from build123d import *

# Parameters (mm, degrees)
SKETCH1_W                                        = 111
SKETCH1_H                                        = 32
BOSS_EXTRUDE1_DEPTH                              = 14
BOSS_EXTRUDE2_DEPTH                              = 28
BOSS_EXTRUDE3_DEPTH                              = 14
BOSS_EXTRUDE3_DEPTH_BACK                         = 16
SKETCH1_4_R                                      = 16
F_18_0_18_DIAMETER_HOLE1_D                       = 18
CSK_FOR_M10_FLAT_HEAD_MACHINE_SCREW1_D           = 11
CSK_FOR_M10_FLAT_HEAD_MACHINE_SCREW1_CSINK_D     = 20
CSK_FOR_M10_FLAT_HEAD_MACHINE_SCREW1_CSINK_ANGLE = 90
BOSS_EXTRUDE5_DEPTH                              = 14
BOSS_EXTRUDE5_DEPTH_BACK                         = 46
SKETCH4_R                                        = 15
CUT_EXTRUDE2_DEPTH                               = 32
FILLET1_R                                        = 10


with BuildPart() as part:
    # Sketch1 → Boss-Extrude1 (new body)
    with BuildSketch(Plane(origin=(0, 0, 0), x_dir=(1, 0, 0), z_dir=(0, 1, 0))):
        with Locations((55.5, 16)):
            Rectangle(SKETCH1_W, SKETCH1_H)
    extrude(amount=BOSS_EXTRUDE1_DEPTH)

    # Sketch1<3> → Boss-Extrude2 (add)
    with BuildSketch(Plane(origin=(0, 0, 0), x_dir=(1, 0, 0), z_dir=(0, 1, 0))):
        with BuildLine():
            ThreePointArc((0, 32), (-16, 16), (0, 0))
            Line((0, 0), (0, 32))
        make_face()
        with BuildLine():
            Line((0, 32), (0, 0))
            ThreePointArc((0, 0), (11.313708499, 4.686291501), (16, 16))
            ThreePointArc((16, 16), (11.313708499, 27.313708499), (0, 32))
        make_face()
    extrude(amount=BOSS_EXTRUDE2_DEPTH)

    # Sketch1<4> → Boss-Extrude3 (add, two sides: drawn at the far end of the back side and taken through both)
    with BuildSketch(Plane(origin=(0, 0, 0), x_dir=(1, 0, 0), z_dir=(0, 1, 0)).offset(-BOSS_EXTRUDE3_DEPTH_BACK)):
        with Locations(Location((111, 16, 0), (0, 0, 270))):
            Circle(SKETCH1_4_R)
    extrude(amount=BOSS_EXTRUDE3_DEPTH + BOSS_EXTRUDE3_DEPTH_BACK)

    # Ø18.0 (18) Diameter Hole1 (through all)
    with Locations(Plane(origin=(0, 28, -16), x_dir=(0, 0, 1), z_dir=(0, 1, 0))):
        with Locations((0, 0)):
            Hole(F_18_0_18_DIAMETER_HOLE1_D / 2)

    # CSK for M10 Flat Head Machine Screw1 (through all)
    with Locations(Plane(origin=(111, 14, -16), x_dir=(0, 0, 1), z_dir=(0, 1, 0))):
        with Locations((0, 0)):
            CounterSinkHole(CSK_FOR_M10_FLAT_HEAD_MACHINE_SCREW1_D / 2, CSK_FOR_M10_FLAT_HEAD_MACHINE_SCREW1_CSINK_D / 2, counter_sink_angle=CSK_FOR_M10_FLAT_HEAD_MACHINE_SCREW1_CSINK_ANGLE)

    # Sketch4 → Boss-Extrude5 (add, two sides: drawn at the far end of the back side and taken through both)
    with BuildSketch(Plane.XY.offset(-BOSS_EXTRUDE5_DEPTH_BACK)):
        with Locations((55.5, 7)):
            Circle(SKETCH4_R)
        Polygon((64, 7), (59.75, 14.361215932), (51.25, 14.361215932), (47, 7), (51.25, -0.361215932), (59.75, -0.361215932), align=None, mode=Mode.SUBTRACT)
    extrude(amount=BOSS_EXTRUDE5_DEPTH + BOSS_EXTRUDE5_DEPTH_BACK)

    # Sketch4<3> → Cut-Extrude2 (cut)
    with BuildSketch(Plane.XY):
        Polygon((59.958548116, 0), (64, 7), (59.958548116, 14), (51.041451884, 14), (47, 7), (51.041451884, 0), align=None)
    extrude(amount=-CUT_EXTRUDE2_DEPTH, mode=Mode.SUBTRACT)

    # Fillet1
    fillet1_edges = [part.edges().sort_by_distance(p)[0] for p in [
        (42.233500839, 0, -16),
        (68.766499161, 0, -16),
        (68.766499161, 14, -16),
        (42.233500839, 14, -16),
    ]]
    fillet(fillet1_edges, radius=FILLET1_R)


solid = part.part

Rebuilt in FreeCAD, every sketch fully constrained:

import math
import FreeCAD as App
import Part
import Sketcher
Q = App.Units.Quantity


def edges_at(feature, points):
    """Names of the edges that pass closest to the given points."""
    edges = feature.Shape.Edges
    near = lambda p: min(range(len(edges)), key=lambda i: edges[i].distToShape(Part.Vertex(*p))[0])
    return sorted({f"Edge{near(p) + 1}" for p in points})

doc = App.newDocument("Part")
body = doc.addObject("PartDesign::Body", "Body")

# Sketch on XZ plane
sketch1 = body.newObject("Sketcher::SketchObject", "Sketch")
sketch1.AttachmentSupport = (doc.getObject("XZ_Plane"), [""])
sketch1.MapMode = "FlatFace"
sketch1.addGeometry([
    Part.LineSegment(App.Vector(0, -32, 0), App.Vector(0, 0, 0)),
    Part.LineSegment(App.Vector(0, 0, 0), App.Vector(111, 0, 0)),
    Part.LineSegment(App.Vector(111, 0, 0), App.Vector(111, -32, 0)),
    Part.LineSegment(App.Vector(111, -32, 0), App.Vector(0, -32, 0)),
], False)
sketch1.addConstraint([
    Sketcher.Constraint("Coincident", 0, 2, 1, 1),
    Sketcher.Constraint("Coincident", 1, 2, 2, 1),
    Sketcher.Constraint("Coincident", 2, 2, 3, 1),
    Sketcher.Constraint("Coincident", 3, 2, 0, 1),
    Sketcher.Constraint("Vertical", 0),
    Sketcher.Constraint("Horizontal", 1),
    Sketcher.Constraint("Vertical", 2),
    Sketcher.Constraint("Horizontal", 3),
    Sketcher.Constraint("Coincident", 0, 2, -1, 1),
    Sketcher.Constraint("DistanceX", 1, 1, 1, 2, Q("111 mm")),
    Sketcher.Constraint("DistanceY", 0, 1, 0, 2, Q("32 mm")),
])
pad1 = body.newObject("PartDesign::Pad", "Pad")
pad1.Profile = sketch1
pad1.Length = 14
pad1.Reversed = True

# Sketch on XZ plane
sketch2 = body.newObject("Sketcher::SketchObject", "Sketch001")
sketch2.AttachmentSupport = (doc.getObject("XZ_Plane"), [""])
sketch2.MapMode = "FlatFace"
sketch2.addGeometry([
    Part.ArcOfCircle(Part.Circle(App.Vector(0, -16, 0), App.Vector(0, 0, 1), 16), math.radians(90), math.radians(270)),
    Part.ArcOfCircle(Part.Circle(App.Vector(0, -16, 0), App.Vector(0, 0, 1), 16), math.radians(0), math.radians(90)),
    Part.ArcOfCircle(Part.Circle(App.Vector(0, -16, 0), App.Vector(0, 0, 1), 16), math.radians(-90), math.radians(0)),
], False)
sketch2.addConstraint([
    Sketcher.Constraint("Tangent", 0, 1, 1, 2),
    Sketcher.Constraint("Tangent", 1, 1, 2, 2),
    Sketcher.Constraint("Tangent", 2, 1, 0, 2),
    Sketcher.Constraint("Coincident", 0, 1, -1, 1),
    Sketcher.Constraint("PointOnObject", 0, 3, -2),
    Sketcher.Constraint("PointOnObject", 2, 1, -2),
    Sketcher.Constraint("Horizontal", 2, 3, 1, 1),
    Sketcher.Constraint("Radius", 0, Q("16 mm")),
])
pad2 = body.newObject("PartDesign::Pad", "Pad001")
pad2.Profile = sketch2
pad2.Length = 28
pad2.Reversed = True

# Sketch on XZ plane
sketch3 = body.newObject("Sketcher::SketchObject", "Sketch002")
sketch3.AttachmentSupport = (doc.getObject("XZ_Plane"), [""])
sketch3.MapMode = "FlatFace"
sketch3.addGeometry(Part.Circle(App.Vector(111, -16, 0), App.Vector(0, 0, 1), 16), False)
sketch3.addConstraint([
    Sketcher.Constraint("Diameter", 0, Q("32 mm")),
    Sketcher.Constraint("DistanceX", -1, 1, 0, 3, Q("111 mm")),
    Sketcher.Constraint("DistanceY", 0, 3, -1, 1, Q("16 mm")),
])
pad3 = body.newObject("PartDesign::Pad", "Pad002")
pad3.Profile = sketch3
pad3.Type = "TwoLengths"
pad3.Length = 14
pad3.Length2 = 16
pad3.Reversed = True

# Sketch on XZ plane
sketch4 = body.newObject("Sketcher::SketchObject", "Sketch003")
sketch4.AttachmentSupport = (doc.getObject("XZ_Plane"), [""])
sketch4.MapMode = "FlatFace"
sketch4.AttachmentOffset = App.Placement(App.Vector(0, 0, -28), App.Rotation())
sketch4.addGeometry(Part.Circle(App.Vector(0, -16, 0), App.Vector(0, 0, 1), 9), False)
sketch4.addConstraint([
    Sketcher.Constraint("PointOnObject", 0, 3, -2),
    Sketcher.Constraint("Diameter", 0, Q("18 mm")),
    Sketcher.Constraint("DistanceY", 0, 3, -1, 1, Q("16 mm")),
])
doc.recompute()
hole = body.newObject("PartDesign::Hole", "Hole")
hole.Profile = sketch4
hole.ThreadType = "None"
hole.Diameter = 18
hole.DepthType = "ThroughAll"
hole.Reversed = True

# Sketch on XZ plane
sketch5 = body.newObject("Sketcher::SketchObject", "Sketch004")
sketch5.AttachmentSupport = (doc.getObject("XZ_Plane"), [""])
sketch5.MapMode = "FlatFace"
sketch5.AttachmentOffset = App.Placement(App.Vector(0, 0, -14), App.Rotation())
sketch5.addGeometry(Part.Circle(App.Vector(111, -16, 0), App.Vector(0, 0, 1), 6), False)
sketch5.addConstraint([
    Sketcher.Constraint("Diameter", 0, Q("11 mm")),
    Sketcher.Constraint("DistanceX", -1, 1, 0, 3, Q("111 mm")),
    Sketcher.Constraint("DistanceY", 0, 3, -1, 1, Q("16 mm")),
])
doc.recompute()
hole2 = body.newObject("PartDesign::Hole", "Hole001")
hole2.Profile = sketch5
hole2.ThreadType = "None"
hole2.Diameter = 11
hole2.DepthType = "ThroughAll"
hole2.HoleCutType = "Countersink"
hole2.HoleCutDiameter = 20
hole2.HoleCutCountersinkAngle = 90
hole2.Reversed = True

# Sketch on XY plane
sketch6 = body.newObject("Sketcher::SketchObject", "Sketch005")
sketch6.AttachmentSupport = (doc.getObject("XY_Plane"), [""])
sketch6.MapMode = "FlatFace"
sketch6.addGeometry([
    Part.Circle(App.Vector(56, 7, 0), App.Vector(0, 0, 1), 15),  # 0
    Part.LineSegment(App.Vector(60, 14, 0), App.Vector(64, 7, 0)),  # 1
    Part.LineSegment(App.Vector(64, 7, 0), App.Vector(60, 0, 0)),  # 2
    Part.LineSegment(App.Vector(60, 0, 0), App.Vector(51, 0, 0)),  # 3
    Part.LineSegment(App.Vector(51, 0, 0), App.Vector(47, 7, 0)),  # 4
    Part.LineSegment(App.Vector(47, 7, 0), App.Vector(51, 14, 0)),  # 5
    Part.LineSegment(App.Vector(51, 14, 0), App.Vector(60, 14, 0)),  # 6
], False)
sketch6.addConstraint([
    Sketcher.Constraint("Coincident", 1, 2, 2, 1),
    Sketcher.Constraint("Coincident", 2, 2, 3, 1),
    Sketcher.Constraint("Coincident", 3, 2, 4, 1),
    Sketcher.Constraint("Coincident", 4, 2, 5, 1),
    Sketcher.Constraint("Coincident", 5, 2, 6, 1),
    Sketcher.Constraint("Coincident", 6, 2, 1, 1),
    Sketcher.Constraint("Horizontal", 3),
    Sketcher.Constraint("Horizontal", 6),
    Sketcher.Constraint("Parallel", 1, 4),
    Sketcher.Constraint("Parallel", 2, 5),
    Sketcher.Constraint("Horizontal", 0, 3, 1, 2),
    Sketcher.Constraint("Horizontal", 1, 2, 4, 2),
    Sketcher.Constraint("Vertical", 3, 2, 5, 2),
    Sketcher.Constraint("Vertical", 2, 2, 6, 2),
    Sketcher.Constraint("Diameter", 0, Q("30 mm")),
    Sketcher.Constraint("Angle", 1, Q("-60 deg")),
    Sketcher.Constraint("DistanceX", 3, 2, 3, 1, Q("8.5 mm")),
    Sketcher.Constraint("DistanceY", -1, 1, 0, 3, Q("7 mm")),
    Sketcher.Constraint("DistanceX", -1, 1, 1, 2, Q("64 mm")),
    Sketcher.Constraint("DistanceX", -1, 1, 4, 2, Q("47 mm")),
    Sketcher.Constraint("DistanceX", -1, 1, 0, 3, Q("55.5 mm")),
])
pad4 = body.newObject("PartDesign::Pad", "Pad003")
pad4.Profile = sketch6
pad4.Type = "TwoLengths"
pad4.Length = 14
pad4.Length2 = 46

# Sketch on XY plane
sketch7 = body.newObject("Sketcher::SketchObject", "Sketch006")
sketch7.AttachmentSupport = (doc.getObject("XY_Plane"), [""])
sketch7.MapMode = "FlatFace"
sketch7.addGeometry([
    Part.LineSegment(App.Vector(60, 0, 0), App.Vector(64, 7, 0)),  # 0
    Part.LineSegment(App.Vector(64, 7, 0), App.Vector(60, 14, 0)),  # 1
    Part.LineSegment(App.Vector(60, 14, 0), App.Vector(51, 14, 0)),  # 2
    Part.LineSegment(App.Vector(51, 14, 0), App.Vector(47, 7, 0)),  # 3
    Part.LineSegment(App.Vector(47, 7, 0), App.Vector(51, 0, 0)),  # 4
    Part.LineSegment(App.Vector(51, 0, 0), App.Vector(60, 0, 0)),  # 5
], False)
sketch7.addConstraint([
    Sketcher.Constraint("Coincident", 0, 2, 1, 1),
    Sketcher.Constraint("Coincident", 1, 2, 2, 1),
    Sketcher.Constraint("Coincident", 2, 2, 3, 1),
    Sketcher.Constraint("Coincident", 3, 2, 4, 1),
    Sketcher.Constraint("Coincident", 4, 2, 5, 1),
    Sketcher.Constraint("Coincident", 5, 2, 0, 1),
    Sketcher.Constraint("Horizontal", 2),
    Sketcher.Constraint("Horizontal", 5),
    Sketcher.Constraint("PointOnObject", 4, 2, -1),
    Sketcher.Constraint("Parallel", 0, 3),
    Sketcher.Constraint("Parallel", 1, 4),
    Sketcher.Constraint("Horizontal", 0, 2, 3, 2),
    Sketcher.Constraint("Vertical", 2, 2, 4, 2),
    Sketcher.Constraint("Vertical", 1, 2, 5, 2),
    Sketcher.Constraint("Angle", 0, Q("60 deg")),
    Sketcher.Constraint("DistanceX", -1, 1, 0, 2, Q("64 mm")),
    Sketcher.Constraint("DistanceY", -1, 1, 0, 2, Q("7 mm")),
    Sketcher.Constraint("DistanceX", -1, 1, 3, 2, Q("47 mm")),
])
pocket1 = body.newObject("PartDesign::Pocket", "Pocket")
pocket1.Profile = sketch7
pocket1.Length = 32
doc.recompute()

fillet = body.newObject("PartDesign::Fillet", "Fillet")
fillet.Base = (pocket1, edges_at(pocket1, [
    (42.234, 0, -16),
    (68.766, 0, -16),
    (68.766, 14, -16),
    (42.234, 14, -16),
]))
fillet.Radius = 10

doc.recompute()
